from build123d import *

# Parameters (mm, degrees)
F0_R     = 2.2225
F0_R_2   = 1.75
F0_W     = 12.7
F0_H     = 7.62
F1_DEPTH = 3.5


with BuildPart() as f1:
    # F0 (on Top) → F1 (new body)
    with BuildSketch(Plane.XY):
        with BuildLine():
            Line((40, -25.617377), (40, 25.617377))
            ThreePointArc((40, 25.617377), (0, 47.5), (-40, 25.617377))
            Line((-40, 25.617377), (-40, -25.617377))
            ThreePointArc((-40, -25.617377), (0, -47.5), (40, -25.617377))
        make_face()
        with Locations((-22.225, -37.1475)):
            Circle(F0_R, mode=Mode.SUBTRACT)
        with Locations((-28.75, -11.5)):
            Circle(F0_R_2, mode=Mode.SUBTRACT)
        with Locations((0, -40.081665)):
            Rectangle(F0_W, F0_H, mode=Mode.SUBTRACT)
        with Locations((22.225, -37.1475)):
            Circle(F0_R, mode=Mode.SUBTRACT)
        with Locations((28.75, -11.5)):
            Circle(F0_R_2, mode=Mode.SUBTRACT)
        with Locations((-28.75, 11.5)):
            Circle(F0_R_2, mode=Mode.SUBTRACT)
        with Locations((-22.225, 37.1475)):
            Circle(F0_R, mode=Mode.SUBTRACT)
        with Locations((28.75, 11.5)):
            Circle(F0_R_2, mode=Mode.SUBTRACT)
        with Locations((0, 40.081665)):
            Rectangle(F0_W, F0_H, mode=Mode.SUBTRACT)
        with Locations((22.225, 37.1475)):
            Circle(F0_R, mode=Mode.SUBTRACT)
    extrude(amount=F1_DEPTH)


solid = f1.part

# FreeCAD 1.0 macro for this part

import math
import FreeCAD as App
import Part
import Sketcher
from FreeCAD import Vector
Q = App.Units.Quantity


def add_polygon(sketch, points):
    """Adds a closed chain of lines whose ends are joined by coincident constraints."""
    first, n = sketch.GeometryCount, len(points)
    for a, b in zip(points, points[1:] + points[:1]):
        sketch.addGeometry(Part.LineSegment(App.Vector(*a, 0), App.Vector(*b, 0)), False)
    for i in range(n):
        sketch.addConstraint(Sketcher.Constraint("Coincident", first + i, 2, first + (i + 1) % n, 1))

doc = App.newDocument("Part")
body = doc.addObject("PartDesign::Body", "Body")

sketch1 = body.newObject("Sketcher::SketchObject", "Sketch")
sketch1.AttachmentSupport = (doc.getObject("XY_Plane"), [""])
sketch1.MapMode = "FlatFace"
sketch1.addGeometry(Part.LineSegment(Vector(40, -25.6, 0), Vector(40, 25.6, 0)), False)
sketch1.addGeometry(Part.ArcOfCircle(Part.Circle(Vector(0, 0, 0), Vector(0, 0, 1), 47.5), math.radians(33), math.radians(147)), False)
sketch1.addGeometry(Part.LineSegment(Vector(-40, 25.6, 0), Vector(-40, -25.6, 0)), False)
sketch1.addGeometry(Part.ArcOfCircle(Part.Circle(Vector(0, 0, 0), Vector(0, 0, 1), 47.5), math.radians(-147), math.radians(-33)), False)
sketch1.addGeometry(Part.Circle(Vector(-22.2, -37.1, 0), Vector(0, 0, 1), 2.2), False)
sketch1.addGeometry(Part.Circle(Vector(-28.8, -11.5, 0), Vector(0, 0, 1), 1.8), False)
add_polygon(sketch1, [(6.3, -43.9), (-6.3, -43.9), (-6.3, -36.3), (6.3, -36.3)])
sketch1.addGeometry(Part.Circle(Vector(22.2, -37.1, 0), Vector(0, 0, 1), 2.2), False)
sketch1.addGeometry(Part.Circle(Vector(28.8, -11.5, 0), Vector(0, 0, 1), 1.8), False)
sketch1.addGeometry(Part.Circle(Vector(-28.8, 11.5, 0), Vector(0, 0, 1), 1.8), False)
sketch1.addGeometry(Part.Circle(Vector(-22.2, 37.1, 0), Vector(0, 0, 1), 2.2), False)
sketch1.addGeometry(Part.Circle(Vector(28.8, 11.5, 0), Vector(0, 0, 1), 1.8), False)
add_polygon(sketch1, [(6.3, 36.3), (-6.3, 36.3), (-6.3, 43.9), (6.3, 43.9)])
sketch1.addGeometry(Part.Circle(Vector(22.2, 37.1, 0), Vector(0, 0, 1), 2.2), False)
sketch1.addConstraint(Sketcher.Constraint("Coincident", 0, 2, 1, 1))
sketch1.addConstraint(Sketcher.Constraint("Coincident", 1, 2, 2, 1))
sketch1.addConstraint(Sketcher.Constraint("Coincident", 2, 2, 3, 1))
sketch1.addConstraint(Sketcher.Constraint("Coincident", 3, 2, 0, 1))
sketch1.addConstraint(Sketcher.Constraint("Vertical", 0))
sketch1.addConstraint(Sketcher.Constraint("Vertical", 2))
sketch1.addConstraint(Sketcher.Constraint("Horizontal", 6))
sketch1.addConstraint(Sketcher.Constraint("Vertical", 7))
sketch1.addConstraint(Sketcher.Constraint("Horizontal", 8))
sketch1.addConstraint(Sketcher.Constraint("Vertical", 9))
sketch1.addConstraint(Sketcher.Constraint("Horizontal", 15))
sketch1.addConstraint(Sketcher.Constraint("Vertical", 16))
sketch1.addConstraint(Sketcher.Constraint("Horizontal", 17))
sketch1.addConstraint(Sketcher.Constraint("Vertical", 18))
sketch1.addConstraint(Sketcher.Constraint("Coincident", 1, 3, -1, 1))
sketch1.addConstraint(Sketcher.Constraint("Coincident", 3, 3, -1, 1))
sketch1.addConstraint(Sketcher.Constraint("Equal", 1, 3))
sketch1.addConstraint(Sketcher.Constraint("Equal", 4, 10))
sketch1.addConstraint(Sketcher.Constraint("Equal", 5, 11))
sketch1.addConstraint(Sketcher.Constraint("Equal", 11, 12))
sketch1.addConstraint(Sketcher.Constraint("Equal", 10, 13))
sketch1.addConstraint(Sketcher.Constraint("Equal", 12, 14))
sketch1.addConstraint(Sketcher.Constraint("Equal", 13, 19))
sketch1.addConstraint(Sketcher.Constraint("Symmetric", 11, 3, 12, 3, -1, 1))
sketch1.addConstraint(Sketcher.Constraint("Symmetric", 10, 3, 13, 3, -1, 1))
sketch1.addConstraint(Sketcher.Constraint("Symmetric", 5, 3, 14, 3, -1, 1))
sketch1.addConstraint(Sketcher.Constraint("Symmetric", 4, 3, 19, 3, -1, 1))
sketch1.addConstraint(Sketcher.Constraint("Symmetric", 8, 2, 15, 2, -1, 1))
sketch1.addConstraint(Sketcher.Constraint("Symmetric", 6, 2, 17, 2, -1, 1))
sketch1.addConstraint(Sketcher.Constraint("Symmetric", 4, 3, 10, 3, -2))
sketch1.addConstraint(Sketcher.Constraint("Symmetric", 5, 3, 11, 3, -2))
sketch1.addConstraint(Sketcher.Constraint("Horizontal", 0, 2, 1, 2))
sketch1.addConstraint(Sketcher.Constraint("Vertical", 7, 2, 15, 2))
sketch1.addConstraint(Sketcher.Constraint("Diameter", 4, Q("0.175 in")))
sketch1.addConstraint(Sketcher.Constraint("DistanceX", 6, 2, 6, 1, Q("0.5 in")))
sketch1.addConstraint(Sketcher.Constraint("DistanceY", 7, 1, 7, 2, Q("0.3 in")))
sketch1.addConstraint(Sketcher.Constraint("Diameter", 5, 3.5))
sketch1.addConstraint(Sketcher.Constraint("Radius", 1, 47.5))
sketch1.addConstraint(Sketcher.Constraint("DistanceX", 4, 3, 10, 3, Q("1.75 in")))
sketch1.addConstraint(Sketcher.Constraint("DistanceY", 4, 3, -1, 1, Q("1.4625 in")))
sketch1.addConstraint(Sketcher.Constraint("DistanceX", 5, 3, -1, 1, 28.75))
sketch1.addConstraint(Sketcher.Constraint("DistanceY", 5, 3, -1, 1, 11.5))
sketch1.addConstraint(Sketcher.Constraint("DistanceX", -1, 1, 0, 2, 40.0))
sketch1.addConstraint(Sketcher.Constraint("DistanceY", 6, 2, 2, 2, 18.274288))
pad1 = body.newObject("PartDesign::Pad", "Pad")
pad1.Profile = sketch1
pad1.Length = 3.5

doc.recompute()
